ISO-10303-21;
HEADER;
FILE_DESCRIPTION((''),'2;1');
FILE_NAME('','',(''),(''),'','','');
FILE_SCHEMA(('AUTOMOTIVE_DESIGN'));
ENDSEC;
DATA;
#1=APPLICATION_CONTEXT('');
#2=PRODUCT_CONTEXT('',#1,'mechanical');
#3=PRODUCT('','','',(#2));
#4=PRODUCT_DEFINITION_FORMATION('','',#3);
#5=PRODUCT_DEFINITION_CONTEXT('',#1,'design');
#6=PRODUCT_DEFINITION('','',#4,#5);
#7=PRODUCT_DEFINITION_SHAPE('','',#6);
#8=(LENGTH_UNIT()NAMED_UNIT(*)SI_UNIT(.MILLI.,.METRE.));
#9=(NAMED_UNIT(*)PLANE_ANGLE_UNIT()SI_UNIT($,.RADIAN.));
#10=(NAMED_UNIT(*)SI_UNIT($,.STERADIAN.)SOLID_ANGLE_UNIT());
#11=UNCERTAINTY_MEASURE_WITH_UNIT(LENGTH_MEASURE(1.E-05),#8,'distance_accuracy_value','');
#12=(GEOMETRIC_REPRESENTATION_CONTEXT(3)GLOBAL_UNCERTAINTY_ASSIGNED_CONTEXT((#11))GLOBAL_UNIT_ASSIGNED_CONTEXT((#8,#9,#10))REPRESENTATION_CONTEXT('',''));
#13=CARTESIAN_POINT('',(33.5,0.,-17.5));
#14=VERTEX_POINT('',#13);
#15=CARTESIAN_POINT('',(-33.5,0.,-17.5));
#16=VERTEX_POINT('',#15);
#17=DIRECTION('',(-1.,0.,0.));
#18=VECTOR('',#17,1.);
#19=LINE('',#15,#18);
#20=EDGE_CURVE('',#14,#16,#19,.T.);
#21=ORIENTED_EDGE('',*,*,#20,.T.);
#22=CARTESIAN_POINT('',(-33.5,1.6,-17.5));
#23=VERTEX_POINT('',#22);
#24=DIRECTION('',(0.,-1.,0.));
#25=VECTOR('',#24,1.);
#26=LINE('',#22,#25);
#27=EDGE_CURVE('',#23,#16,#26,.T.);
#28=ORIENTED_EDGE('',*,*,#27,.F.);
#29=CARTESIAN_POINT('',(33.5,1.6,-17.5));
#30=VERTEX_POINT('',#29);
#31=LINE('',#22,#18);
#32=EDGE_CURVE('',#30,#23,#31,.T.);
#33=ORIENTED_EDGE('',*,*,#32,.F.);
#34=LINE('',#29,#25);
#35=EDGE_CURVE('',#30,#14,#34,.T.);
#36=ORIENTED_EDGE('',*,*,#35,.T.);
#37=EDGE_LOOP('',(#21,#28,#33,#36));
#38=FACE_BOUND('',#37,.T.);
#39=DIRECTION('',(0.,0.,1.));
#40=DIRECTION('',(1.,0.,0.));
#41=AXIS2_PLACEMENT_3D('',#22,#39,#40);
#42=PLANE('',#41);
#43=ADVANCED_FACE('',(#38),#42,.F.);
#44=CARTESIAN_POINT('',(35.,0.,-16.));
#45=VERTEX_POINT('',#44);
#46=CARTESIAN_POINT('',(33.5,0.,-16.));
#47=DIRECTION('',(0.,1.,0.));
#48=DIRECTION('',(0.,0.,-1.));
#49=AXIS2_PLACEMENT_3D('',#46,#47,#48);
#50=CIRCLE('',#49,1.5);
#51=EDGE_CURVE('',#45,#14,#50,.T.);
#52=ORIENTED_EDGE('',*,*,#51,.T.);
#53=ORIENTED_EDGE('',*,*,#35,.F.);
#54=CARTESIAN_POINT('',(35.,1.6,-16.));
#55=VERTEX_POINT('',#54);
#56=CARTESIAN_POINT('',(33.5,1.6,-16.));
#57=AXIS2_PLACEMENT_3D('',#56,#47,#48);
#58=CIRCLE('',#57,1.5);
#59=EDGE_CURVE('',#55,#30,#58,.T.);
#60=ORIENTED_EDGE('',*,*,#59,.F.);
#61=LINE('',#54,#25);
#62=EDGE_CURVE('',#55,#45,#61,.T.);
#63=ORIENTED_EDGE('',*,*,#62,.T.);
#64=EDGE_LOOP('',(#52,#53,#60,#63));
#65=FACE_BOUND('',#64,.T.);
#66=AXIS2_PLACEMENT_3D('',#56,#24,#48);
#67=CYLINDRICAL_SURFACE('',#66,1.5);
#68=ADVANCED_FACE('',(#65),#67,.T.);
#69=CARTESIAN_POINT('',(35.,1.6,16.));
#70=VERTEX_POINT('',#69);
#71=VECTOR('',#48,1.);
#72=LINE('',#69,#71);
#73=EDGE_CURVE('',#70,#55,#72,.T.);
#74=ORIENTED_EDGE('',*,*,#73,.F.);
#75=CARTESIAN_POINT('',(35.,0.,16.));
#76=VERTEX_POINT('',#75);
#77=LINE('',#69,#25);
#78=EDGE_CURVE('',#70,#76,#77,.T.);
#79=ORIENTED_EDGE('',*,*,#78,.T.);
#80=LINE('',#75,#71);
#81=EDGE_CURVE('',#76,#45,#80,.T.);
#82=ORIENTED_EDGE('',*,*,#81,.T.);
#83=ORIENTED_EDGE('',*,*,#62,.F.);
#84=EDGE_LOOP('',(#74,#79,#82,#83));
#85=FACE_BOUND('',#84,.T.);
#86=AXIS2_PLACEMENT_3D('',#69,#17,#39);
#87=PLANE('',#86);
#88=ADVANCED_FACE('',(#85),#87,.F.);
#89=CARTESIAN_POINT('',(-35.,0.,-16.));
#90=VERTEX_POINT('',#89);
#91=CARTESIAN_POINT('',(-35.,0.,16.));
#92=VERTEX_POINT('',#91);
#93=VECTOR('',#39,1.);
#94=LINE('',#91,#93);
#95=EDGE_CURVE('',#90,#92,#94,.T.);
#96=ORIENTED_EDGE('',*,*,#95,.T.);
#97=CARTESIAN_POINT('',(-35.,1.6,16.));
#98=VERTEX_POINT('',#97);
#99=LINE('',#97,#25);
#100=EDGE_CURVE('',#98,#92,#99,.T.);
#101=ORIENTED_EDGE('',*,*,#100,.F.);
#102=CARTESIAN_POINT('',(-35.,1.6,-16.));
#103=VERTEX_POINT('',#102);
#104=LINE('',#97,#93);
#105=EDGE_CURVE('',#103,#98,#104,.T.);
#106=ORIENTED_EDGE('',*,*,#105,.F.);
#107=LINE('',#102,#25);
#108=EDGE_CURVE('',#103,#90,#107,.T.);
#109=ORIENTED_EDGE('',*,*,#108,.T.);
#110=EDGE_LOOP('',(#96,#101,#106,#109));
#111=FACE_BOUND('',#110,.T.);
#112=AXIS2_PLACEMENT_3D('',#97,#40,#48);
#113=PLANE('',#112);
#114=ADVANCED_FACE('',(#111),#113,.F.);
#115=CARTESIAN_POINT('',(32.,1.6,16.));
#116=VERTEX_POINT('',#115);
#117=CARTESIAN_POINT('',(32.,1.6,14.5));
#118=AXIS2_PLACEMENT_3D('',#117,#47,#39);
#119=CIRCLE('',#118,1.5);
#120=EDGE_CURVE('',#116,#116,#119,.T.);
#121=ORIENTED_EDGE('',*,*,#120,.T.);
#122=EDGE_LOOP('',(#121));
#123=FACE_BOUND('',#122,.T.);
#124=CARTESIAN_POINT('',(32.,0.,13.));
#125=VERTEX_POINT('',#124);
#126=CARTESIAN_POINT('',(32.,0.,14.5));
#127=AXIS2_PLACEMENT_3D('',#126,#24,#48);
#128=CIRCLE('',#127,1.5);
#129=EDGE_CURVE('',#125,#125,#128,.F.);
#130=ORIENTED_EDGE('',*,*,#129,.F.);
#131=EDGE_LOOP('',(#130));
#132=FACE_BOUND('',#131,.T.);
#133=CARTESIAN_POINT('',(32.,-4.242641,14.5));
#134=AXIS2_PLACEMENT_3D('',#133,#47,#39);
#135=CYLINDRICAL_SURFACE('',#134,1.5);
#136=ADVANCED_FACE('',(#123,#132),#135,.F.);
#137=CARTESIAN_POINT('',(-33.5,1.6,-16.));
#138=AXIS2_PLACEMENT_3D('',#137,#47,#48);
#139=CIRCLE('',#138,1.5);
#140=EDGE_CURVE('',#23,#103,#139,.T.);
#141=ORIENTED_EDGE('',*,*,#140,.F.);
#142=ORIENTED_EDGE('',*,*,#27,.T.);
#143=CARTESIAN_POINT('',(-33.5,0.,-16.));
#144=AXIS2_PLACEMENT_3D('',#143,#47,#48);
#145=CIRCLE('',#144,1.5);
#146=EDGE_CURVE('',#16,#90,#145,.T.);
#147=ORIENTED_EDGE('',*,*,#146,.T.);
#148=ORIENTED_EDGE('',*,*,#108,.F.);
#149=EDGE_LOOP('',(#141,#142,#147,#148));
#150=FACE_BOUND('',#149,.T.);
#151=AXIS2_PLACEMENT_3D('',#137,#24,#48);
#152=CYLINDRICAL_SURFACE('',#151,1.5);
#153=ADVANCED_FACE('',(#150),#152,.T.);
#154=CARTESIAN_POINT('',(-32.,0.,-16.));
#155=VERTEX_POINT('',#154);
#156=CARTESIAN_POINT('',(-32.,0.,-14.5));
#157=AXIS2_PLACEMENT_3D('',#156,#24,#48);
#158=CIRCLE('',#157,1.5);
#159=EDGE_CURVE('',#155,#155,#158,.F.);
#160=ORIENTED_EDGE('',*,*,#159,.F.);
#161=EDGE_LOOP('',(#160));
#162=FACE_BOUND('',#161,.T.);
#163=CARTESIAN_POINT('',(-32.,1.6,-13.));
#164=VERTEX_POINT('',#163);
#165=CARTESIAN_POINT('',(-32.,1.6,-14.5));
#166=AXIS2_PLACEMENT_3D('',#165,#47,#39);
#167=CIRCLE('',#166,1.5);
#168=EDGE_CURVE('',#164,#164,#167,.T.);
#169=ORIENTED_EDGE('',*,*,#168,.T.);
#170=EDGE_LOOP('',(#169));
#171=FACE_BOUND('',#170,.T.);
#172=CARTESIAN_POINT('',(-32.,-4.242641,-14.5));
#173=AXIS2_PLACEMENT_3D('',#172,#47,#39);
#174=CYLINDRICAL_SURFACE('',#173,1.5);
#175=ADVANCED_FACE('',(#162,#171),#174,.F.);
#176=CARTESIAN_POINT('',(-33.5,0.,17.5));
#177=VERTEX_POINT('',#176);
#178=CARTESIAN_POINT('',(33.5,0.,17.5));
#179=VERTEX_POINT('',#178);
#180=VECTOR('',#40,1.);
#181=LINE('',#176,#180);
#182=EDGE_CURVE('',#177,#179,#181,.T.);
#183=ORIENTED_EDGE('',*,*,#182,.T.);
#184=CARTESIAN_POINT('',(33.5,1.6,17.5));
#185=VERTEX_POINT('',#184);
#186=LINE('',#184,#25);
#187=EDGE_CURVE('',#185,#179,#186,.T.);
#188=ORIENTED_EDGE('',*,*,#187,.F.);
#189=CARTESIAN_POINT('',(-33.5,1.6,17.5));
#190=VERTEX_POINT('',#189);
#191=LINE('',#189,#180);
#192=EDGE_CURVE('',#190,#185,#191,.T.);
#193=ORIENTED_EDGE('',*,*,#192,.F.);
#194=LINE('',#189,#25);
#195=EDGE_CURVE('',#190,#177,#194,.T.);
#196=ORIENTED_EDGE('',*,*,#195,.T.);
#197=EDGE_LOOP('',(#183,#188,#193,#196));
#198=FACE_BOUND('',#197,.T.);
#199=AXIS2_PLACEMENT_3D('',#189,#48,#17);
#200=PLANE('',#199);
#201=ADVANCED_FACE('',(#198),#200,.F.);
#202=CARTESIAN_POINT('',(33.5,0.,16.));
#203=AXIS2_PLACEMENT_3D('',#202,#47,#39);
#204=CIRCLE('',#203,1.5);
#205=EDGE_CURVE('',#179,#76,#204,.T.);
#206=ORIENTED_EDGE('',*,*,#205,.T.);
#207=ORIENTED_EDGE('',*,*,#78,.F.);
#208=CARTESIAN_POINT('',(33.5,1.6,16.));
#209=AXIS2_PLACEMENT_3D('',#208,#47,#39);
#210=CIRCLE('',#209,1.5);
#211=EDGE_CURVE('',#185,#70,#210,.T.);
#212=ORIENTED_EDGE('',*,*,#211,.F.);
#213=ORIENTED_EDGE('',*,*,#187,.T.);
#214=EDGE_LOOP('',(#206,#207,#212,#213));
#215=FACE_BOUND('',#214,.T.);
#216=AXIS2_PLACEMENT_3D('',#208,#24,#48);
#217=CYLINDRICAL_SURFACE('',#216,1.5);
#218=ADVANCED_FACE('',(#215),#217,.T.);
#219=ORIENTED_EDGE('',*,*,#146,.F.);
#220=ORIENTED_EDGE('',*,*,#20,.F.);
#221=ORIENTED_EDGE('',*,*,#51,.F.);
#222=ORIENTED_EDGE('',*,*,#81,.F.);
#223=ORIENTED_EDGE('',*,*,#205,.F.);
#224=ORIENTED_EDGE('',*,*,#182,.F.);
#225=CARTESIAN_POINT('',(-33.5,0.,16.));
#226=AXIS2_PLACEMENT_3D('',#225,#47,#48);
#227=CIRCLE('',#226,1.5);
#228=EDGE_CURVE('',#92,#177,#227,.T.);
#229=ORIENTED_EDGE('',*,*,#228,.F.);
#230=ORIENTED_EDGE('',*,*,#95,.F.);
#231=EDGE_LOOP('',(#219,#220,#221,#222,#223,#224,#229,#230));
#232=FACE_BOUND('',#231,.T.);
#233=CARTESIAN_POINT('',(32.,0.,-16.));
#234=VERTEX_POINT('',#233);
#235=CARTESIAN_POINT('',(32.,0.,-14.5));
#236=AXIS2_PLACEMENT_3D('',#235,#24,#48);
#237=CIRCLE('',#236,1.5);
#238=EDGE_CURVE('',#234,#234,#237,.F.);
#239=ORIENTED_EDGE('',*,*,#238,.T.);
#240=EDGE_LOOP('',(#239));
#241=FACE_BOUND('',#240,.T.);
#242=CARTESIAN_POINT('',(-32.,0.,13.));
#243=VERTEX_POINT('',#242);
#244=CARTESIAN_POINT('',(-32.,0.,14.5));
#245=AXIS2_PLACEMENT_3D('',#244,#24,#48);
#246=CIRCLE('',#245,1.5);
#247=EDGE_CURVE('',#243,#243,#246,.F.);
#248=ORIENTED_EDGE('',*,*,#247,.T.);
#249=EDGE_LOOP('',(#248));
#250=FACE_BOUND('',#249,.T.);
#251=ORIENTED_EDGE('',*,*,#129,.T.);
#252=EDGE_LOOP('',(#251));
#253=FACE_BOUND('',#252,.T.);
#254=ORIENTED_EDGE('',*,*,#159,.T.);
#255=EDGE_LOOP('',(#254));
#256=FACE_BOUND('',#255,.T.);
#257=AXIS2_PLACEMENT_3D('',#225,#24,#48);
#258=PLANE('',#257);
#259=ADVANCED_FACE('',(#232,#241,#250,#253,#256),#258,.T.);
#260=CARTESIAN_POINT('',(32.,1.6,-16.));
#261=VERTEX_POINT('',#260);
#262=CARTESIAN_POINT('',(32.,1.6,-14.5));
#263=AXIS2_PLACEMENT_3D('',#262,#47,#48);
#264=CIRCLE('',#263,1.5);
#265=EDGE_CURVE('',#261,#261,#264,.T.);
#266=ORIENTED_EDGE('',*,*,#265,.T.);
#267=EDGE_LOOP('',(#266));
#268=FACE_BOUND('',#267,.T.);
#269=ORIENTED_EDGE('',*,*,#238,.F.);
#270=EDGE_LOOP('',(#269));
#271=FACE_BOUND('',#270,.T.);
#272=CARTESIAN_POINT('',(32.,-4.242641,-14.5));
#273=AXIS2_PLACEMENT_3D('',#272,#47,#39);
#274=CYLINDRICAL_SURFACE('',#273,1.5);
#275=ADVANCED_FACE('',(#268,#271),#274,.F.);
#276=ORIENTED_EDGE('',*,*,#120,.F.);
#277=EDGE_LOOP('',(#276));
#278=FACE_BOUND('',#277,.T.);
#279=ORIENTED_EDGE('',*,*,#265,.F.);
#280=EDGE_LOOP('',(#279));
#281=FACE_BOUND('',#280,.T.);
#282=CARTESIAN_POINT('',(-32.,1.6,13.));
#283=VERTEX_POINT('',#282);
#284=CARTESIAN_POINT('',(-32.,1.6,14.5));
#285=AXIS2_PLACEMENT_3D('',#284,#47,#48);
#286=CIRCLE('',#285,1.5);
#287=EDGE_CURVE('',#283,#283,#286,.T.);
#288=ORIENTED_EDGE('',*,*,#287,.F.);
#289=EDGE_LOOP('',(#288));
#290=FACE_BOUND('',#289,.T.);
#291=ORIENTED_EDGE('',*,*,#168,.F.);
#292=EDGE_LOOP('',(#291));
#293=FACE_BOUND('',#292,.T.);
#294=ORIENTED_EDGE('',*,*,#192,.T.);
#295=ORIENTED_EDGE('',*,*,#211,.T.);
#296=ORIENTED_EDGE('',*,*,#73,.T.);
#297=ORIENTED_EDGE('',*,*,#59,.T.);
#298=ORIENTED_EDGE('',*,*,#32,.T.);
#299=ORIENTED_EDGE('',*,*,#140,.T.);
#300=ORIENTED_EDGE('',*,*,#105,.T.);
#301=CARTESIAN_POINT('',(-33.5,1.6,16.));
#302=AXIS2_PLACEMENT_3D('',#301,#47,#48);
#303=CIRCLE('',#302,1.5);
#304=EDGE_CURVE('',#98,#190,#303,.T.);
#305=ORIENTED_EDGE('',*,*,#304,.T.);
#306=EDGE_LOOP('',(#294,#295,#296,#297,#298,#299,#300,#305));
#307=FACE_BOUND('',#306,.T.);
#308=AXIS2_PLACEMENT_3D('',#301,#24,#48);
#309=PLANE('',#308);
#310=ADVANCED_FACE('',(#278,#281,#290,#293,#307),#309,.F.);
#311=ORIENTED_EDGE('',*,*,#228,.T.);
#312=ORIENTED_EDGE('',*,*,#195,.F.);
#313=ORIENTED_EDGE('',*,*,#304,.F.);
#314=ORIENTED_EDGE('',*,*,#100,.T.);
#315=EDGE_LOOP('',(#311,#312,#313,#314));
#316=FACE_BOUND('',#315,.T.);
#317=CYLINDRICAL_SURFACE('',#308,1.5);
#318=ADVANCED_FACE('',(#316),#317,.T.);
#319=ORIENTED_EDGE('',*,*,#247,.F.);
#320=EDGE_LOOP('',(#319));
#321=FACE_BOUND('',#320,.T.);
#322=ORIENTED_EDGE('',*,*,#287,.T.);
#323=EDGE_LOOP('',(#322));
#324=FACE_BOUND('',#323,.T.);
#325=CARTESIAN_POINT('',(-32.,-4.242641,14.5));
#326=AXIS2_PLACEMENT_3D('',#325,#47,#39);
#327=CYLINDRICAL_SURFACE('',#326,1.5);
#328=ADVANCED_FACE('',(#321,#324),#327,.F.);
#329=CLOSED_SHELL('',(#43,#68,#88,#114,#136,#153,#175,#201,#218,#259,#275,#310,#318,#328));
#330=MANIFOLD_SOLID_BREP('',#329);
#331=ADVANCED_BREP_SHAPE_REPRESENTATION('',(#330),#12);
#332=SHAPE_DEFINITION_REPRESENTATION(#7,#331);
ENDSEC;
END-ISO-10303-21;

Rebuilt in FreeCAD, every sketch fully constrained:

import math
import FreeCAD as App
import Part
import Sketcher

V = App.Vector
Q = App.Units.Quantity

doc = App.newDocument("Part")
body = doc.addObject("PartDesign::Body", "Body")

# Sketch on XZ plane
sketch1 = body.newObject("Sketcher::SketchObject", "Sketch")
sketch1.AttachmentSupport = (doc.getObject("XZ_Plane"), [""])
sketch1.MapMode = "FlatFace"
sketch1.addGeometry([
    Part.LineSegment(V(-33.5, 17.5, 0), V(33.5, 17.5, 0)),  # 0
    Part.ArcOfCircle(Part.Circle(V(33.5, 16, 0), V(0, 0, 1), 1.5), math.radians(0), math.radians(90)),  # 1
    Part.LineSegment(V(35, 16, 0), V(35, -16, 0)),  # 2
    Part.ArcOfCircle(Part.Circle(V(33.5, -16, 0), V(0, 0, 1), 1.5), math.radians(-90), math.radians(0)),  # 3
    Part.LineSegment(V(33.5, -17.5, 0), V(-33.5, -17.5, 0)),  # 4
    Part.ArcOfCircle(Part.Circle(V(-33.5, -16, 0), V(0, 0, 1), 1.5), math.radians(180), math.radians(270)),  # 5
    Part.LineSegment(V(-35, -16, 0), V(-35, 16, 0)),  # 6
    Part.ArcOfCircle(Part.Circle(V(-33.5, 16, 0), V(0, 0, 1), 1.5), math.radians(90), math.radians(180)),  # 7
], False)
sketch1.addConstraint([
    Sketcher.Constraint("Tangent", 0, 2, 1, 2),
    Sketcher.Constraint("Tangent", 1, 1, 2, 1),
    Sketcher.Constraint("Tangent", 2, 2, 3, 2),
    Sketcher.Constraint("Tangent", 3, 1, 4, 1),
    Sketcher.Constraint("Tangent", 4, 2, 5, 2),
    Sketcher.Constraint("Tangent", 5, 1, 6, 1),
    Sketcher.Constraint("Tangent", 6, 2, 7, 2),
    Sketcher.Constraint("Tangent", 7, 1, 0, 1),
    Sketcher.Constraint("Horizontal", 0),
    Sketcher.Constraint("Vertical", 2),
    Sketcher.Constraint("Horizontal", 4),
    Sketcher.Constraint("Vertical", 6),
    Sketcher.Constraint("Equal", 1, 3),
    Sketcher.Constraint("Equal", 3, 5),
    Sketcher.Constraint("Equal", 5, 7),
    Sketcher.Constraint("Symmetric", 1, 3, 5, 3, -1, 1),
    Sketcher.Constraint("Radius", 1, Q("1.5 mm")),
    Sketcher.Constraint("DistanceX", 0, 1, 0, 2, Q("67 mm")),
    Sketcher.Constraint("DistanceY", 2, 2, 2, 1, Q("32 mm")),
])
pad1 = body.newObject("PartDesign::Pad", "Pad")
pad1.Profile = sketch1
pad1.Length = 1.6
pad1.Reversed = True

# Sketch on XZ plane
sketch2 = body.newObject("Sketcher::SketchObject", "Sketch001")
sketch2.AttachmentSupport = (doc.getObject("XZ_Plane"), [""])
sketch2.MapMode = "FlatFace"
sketch2.AttachmentOffset = App.Placement(V(0, 0, -1.6), App.Rotation())
sketch2.addGeometry([
    Part.Circle(V(-32, -14.5, 0), V(0, 0, 1), 1.5),
    Part.Circle(V(32, -14.5, 0), V(0, 0, 1), 1.5),
    Part.Circle(V(32, 14.5, 0), V(0, 0, 1), 1.5),
    Part.Circle(V(-32, 14.5, 0), V(0, 0, 1), 1.5),
], False)
sketch2.addConstraint([
    Sketcher.Constraint("Equal", 0, 1),
    Sketcher.Constraint("Equal", 1, 2),
    Sketcher.Constraint("Equal", 2, 3),
    Sketcher.Constraint("Symmetric", 0, 3, 2, 3, -1, 1),
    Sketcher.Constraint("Symmetric", 1, 3, 3, 3, -1, 1),
    Sketcher.Constraint("Symmetric", 0, 3, 1, 3, -2),
    Sketcher.Constraint("Diameter", 0, Q("3 mm")),
    Sketcher.Constraint("DistanceX", 0, 3, -1, 1, Q("32 mm")),
    Sketcher.Constraint("DistanceY", 1, 3, 2, 3, Q("29 mm")),
])
pocket1 = body.newObject("PartDesign::Pocket", "Pocket")
pocket1.Profile = sketch2
pocket1.Length = 1.6
pocket1.Reversed = True

doc.recompute()
